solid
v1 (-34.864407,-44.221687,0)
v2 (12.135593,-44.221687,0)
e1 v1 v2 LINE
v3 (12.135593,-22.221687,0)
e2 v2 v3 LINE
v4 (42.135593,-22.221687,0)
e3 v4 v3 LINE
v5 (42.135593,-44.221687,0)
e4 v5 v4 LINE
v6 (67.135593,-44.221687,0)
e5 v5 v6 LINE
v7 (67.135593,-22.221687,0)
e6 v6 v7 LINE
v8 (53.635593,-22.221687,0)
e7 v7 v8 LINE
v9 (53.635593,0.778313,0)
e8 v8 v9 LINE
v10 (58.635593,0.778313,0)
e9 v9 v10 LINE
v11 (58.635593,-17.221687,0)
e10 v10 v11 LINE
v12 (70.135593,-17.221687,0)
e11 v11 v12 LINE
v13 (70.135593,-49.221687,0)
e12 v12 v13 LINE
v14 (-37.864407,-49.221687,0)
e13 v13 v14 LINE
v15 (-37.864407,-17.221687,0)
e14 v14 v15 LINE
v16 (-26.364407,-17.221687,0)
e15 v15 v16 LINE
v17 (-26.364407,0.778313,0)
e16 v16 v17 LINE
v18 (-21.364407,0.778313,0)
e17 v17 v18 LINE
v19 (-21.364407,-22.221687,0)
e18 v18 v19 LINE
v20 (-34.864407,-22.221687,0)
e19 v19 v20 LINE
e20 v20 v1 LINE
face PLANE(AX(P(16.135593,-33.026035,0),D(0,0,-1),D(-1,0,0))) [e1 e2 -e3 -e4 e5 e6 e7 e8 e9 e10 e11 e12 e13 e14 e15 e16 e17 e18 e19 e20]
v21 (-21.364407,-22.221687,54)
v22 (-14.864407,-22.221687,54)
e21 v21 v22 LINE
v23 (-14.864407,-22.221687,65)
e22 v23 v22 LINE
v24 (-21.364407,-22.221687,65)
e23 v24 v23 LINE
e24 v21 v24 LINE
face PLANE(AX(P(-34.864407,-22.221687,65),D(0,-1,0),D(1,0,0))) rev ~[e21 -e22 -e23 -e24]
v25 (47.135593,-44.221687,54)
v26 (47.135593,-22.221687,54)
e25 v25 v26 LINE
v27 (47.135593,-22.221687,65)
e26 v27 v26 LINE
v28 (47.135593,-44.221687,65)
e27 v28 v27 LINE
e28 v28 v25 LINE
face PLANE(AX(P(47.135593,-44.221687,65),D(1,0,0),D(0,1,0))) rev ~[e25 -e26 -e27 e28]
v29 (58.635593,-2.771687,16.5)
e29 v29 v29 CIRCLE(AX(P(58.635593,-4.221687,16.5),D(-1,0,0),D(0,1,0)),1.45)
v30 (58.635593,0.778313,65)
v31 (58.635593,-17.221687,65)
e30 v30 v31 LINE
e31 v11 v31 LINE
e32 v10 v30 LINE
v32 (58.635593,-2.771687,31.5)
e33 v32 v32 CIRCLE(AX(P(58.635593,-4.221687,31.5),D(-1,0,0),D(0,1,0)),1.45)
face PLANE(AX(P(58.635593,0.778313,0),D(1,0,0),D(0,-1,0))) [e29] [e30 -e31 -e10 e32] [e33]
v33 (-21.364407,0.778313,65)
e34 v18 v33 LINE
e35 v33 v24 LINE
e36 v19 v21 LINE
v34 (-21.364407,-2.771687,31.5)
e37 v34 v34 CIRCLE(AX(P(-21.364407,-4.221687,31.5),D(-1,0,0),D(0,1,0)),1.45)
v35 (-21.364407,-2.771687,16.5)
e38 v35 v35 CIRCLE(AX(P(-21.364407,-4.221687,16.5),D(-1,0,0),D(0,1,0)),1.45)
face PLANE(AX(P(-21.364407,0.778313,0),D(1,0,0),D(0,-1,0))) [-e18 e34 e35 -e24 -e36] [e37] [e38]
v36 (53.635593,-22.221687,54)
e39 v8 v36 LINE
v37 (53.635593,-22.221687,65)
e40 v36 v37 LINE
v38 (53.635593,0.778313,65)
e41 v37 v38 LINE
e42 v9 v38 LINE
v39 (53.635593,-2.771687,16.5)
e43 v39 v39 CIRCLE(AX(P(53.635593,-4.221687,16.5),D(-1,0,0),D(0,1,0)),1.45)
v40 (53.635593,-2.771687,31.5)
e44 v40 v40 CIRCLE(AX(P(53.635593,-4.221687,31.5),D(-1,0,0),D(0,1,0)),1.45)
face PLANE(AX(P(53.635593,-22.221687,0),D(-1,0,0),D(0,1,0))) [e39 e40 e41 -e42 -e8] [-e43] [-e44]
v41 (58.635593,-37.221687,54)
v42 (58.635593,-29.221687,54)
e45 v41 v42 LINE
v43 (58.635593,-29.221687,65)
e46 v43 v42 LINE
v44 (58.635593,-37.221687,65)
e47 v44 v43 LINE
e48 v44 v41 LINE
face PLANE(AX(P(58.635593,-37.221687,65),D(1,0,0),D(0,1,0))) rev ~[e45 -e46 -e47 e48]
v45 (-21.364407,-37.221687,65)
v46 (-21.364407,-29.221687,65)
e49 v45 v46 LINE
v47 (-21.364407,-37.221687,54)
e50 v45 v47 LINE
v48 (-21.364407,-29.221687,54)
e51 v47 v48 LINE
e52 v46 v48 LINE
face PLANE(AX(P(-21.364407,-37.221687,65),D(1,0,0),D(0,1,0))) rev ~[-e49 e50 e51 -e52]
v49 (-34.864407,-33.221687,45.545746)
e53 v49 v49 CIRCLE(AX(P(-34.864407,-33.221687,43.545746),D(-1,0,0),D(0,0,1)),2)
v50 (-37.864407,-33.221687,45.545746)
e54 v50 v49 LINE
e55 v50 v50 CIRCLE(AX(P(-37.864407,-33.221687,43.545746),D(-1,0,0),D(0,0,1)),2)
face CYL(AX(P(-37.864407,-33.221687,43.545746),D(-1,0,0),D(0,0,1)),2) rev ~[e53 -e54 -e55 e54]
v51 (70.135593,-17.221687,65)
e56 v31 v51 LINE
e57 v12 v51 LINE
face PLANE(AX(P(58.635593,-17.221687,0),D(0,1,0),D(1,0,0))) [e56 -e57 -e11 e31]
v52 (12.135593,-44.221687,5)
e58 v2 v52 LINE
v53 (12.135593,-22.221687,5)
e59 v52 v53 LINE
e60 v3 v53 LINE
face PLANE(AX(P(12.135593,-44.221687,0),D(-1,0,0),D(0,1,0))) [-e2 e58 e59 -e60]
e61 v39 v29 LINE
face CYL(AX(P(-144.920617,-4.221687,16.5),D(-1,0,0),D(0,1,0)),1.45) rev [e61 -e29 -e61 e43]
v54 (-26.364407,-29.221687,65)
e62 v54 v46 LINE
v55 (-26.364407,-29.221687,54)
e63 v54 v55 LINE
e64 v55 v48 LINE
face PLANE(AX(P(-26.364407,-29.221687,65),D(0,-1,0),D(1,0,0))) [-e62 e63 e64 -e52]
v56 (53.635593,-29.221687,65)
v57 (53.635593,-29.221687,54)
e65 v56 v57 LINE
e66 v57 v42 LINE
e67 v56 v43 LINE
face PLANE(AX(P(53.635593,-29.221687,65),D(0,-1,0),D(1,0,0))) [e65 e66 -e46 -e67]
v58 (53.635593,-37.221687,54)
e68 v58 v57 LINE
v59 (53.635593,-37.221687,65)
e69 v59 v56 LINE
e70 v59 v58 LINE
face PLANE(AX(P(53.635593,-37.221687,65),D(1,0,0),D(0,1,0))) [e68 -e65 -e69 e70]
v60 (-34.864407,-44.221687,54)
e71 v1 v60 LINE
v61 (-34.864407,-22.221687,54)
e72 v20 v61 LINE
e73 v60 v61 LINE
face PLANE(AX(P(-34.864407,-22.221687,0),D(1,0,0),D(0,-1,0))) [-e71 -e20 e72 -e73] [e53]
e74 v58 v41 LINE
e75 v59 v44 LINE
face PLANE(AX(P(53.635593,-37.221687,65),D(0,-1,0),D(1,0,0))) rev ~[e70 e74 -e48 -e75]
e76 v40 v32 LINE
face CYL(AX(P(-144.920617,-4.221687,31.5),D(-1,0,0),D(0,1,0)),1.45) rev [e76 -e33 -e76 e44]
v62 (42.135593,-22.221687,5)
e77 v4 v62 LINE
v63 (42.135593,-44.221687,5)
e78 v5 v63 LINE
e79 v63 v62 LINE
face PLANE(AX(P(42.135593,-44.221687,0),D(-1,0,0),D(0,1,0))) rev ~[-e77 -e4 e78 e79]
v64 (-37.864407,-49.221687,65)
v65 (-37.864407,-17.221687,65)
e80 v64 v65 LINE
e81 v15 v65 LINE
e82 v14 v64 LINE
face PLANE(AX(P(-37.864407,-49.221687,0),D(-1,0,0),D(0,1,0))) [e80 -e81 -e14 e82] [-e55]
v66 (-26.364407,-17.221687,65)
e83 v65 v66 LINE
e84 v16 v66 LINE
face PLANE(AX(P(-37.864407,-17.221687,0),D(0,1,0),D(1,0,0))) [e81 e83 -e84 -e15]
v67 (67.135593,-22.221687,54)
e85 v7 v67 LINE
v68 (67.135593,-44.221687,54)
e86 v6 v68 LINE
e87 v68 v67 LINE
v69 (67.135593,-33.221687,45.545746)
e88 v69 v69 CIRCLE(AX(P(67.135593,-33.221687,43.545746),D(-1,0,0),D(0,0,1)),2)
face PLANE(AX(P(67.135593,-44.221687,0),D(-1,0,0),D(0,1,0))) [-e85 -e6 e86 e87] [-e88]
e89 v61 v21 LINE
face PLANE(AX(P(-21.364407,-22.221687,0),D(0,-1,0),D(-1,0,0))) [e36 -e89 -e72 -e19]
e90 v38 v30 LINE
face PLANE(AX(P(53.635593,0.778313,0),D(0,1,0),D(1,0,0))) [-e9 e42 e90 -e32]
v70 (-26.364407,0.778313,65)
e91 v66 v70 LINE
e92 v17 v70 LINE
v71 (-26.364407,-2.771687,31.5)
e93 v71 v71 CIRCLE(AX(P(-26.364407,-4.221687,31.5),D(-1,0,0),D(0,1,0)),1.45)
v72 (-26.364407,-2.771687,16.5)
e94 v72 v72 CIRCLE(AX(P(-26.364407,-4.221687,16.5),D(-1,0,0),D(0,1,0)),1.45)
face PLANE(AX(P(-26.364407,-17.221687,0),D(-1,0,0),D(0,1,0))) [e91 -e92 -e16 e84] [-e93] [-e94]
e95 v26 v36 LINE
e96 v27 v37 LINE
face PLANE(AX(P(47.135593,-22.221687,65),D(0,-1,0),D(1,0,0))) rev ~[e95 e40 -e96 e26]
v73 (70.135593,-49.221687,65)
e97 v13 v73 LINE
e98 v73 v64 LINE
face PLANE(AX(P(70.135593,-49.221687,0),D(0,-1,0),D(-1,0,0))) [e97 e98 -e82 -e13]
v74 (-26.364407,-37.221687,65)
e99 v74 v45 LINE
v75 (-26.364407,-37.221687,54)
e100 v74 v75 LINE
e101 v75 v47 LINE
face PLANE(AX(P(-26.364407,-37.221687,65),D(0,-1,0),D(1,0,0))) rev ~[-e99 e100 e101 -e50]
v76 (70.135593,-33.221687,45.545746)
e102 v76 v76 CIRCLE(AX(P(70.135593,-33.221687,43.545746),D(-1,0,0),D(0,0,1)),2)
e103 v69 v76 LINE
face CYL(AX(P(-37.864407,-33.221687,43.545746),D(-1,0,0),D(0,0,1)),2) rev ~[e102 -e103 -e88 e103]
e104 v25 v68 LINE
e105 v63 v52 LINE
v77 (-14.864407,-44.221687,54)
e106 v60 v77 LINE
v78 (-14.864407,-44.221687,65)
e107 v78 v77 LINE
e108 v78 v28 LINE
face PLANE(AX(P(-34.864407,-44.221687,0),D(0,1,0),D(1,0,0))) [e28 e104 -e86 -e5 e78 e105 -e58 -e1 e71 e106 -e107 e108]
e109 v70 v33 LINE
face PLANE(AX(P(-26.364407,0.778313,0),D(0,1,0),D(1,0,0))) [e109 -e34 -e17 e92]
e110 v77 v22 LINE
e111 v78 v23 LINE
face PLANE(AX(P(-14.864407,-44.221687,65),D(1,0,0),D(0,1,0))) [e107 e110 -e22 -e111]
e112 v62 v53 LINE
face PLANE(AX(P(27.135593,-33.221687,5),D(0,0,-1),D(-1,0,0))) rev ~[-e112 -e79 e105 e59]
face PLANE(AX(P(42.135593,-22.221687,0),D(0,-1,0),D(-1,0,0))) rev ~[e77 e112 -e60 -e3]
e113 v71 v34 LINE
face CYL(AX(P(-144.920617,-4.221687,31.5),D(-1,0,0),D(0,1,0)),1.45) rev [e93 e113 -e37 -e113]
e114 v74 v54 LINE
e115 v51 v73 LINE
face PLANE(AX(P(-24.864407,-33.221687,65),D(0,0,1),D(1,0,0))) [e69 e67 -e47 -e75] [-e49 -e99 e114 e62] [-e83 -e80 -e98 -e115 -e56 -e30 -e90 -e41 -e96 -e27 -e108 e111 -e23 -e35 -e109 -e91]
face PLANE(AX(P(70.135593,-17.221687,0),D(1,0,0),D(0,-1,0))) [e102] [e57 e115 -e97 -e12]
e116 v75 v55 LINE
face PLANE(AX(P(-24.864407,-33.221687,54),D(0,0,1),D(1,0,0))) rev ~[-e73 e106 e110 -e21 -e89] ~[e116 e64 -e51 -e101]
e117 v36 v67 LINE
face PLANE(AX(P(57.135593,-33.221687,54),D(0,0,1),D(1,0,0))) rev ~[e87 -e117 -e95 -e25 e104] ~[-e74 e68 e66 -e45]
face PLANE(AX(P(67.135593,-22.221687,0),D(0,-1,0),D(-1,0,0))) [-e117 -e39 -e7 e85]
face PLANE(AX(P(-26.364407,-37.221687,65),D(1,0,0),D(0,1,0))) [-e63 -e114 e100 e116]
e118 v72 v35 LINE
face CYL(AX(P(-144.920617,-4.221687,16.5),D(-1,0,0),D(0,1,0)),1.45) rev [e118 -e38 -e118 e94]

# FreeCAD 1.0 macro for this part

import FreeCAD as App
import Part
import Sketcher


def add_polygon(sketch, points):
    """Adds a closed chain of lines whose ends are joined by coincident constraints."""
    first, n = sketch.GeometryCount, len(points)
    for a, b in zip(points, points[1:] + points[:1]):
        sketch.addGeometry(Part.LineSegment(App.Vector(*a, 0), App.Vector(*b, 0)), False)
    for i in range(n):
        sketch.addConstraint(Sketcher.Constraint("Coincident", first + i, 2, first + (i + 1) % n, 1))

doc = App.newDocument("Part")
body = doc.addObject("PartDesign::Body", "Body")

sketch1 = doc.addObject("Sketcher::SketchObject", "Sketch")
body.addObject(sketch1)
sketch1.AttachmentSupport = (doc.XY_Plane, [""])
sketch1.MapMode = "FlatFace"
add_polygon(sketch1, [(-21, 1), (-26, 1), (-26, -17), (-38, -17), (-38, -49), (70, -49), (70, -17), (59, -17), (59, 1), (54, 1), (54, -22), (67, -22), (67, -44), (-35, -44), (-35, -22), (-21, -22)])
sketch1.addConstraint(Sketcher.Constraint("Horizontal", 0))
sketch1.addConstraint(Sketcher.Constraint("Vertical", 1))
sketch1.addConstraint(Sketcher.Constraint("Horizontal", 2))
sketch1.addConstraint(Sketcher.Constraint("Vertical", 3))
sketch1.addConstraint(Sketcher.Constraint("Horizontal", 4))
sketch1.addConstraint(Sketcher.Constraint("Vertical", 5))
sketch1.addConstraint(Sketcher.Constraint("Horizontal", 6))
sketch1.addConstraint(Sketcher.Constraint("Vertical", 7))
sketch1.addConstraint(Sketcher.Constraint("Horizontal", 8))
sketch1.addConstraint(Sketcher.Constraint("Vertical", 9))
sketch1.addConstraint(Sketcher.Constraint("Horizontal", 10))
sketch1.addConstraint(Sketcher.Constraint("Vertical", 11))
sketch1.addConstraint(Sketcher.Constraint("Horizontal", 12))
sketch1.addConstraint(Sketcher.Constraint("Vertical", 13))
sketch1.addConstraint(Sketcher.Constraint("Horizontal", 14))
sketch1.addConstraint(Sketcher.Constraint("Vertical", 15))
sketch1.addConstraint(Sketcher.Constraint("Horizontal", 2, 2, 5, 2))
sketch1.addConstraint(Sketcher.Constraint("Horizontal", 0, 2, 7, 2))
sketch1.addConstraint(Sketcher.Constraint("Horizontal", 10, 2, 13, 2))
sketch1.addConstraint(Sketcher.Constraint("Equal", 2, 6))
sketch1.addConstraint(Sketcher.Constraint("Equal", 0, 8))
sketch1.addConstraint(Sketcher.Constraint("Equal", 10, 14))
sketch1.addConstraint(Sketcher.Constraint("DistanceX", 0, 2, 0, 1, 5.0))
sketch1.addConstraint(Sketcher.Constraint("DistanceX", 4, 1, 4, 2, 108.0))
sketch1.addConstraint(Sketcher.Constraint("DistanceX", 12, 2, 12, 1, 102.0))
sketch1.addConstraint(Sketcher.Constraint("DistanceY", 1, 2, 1, 1, 18.0))
sketch1.addConstraint(Sketcher.Constraint("DistanceY", 3, 2, 3, 1, 32.0))
sketch1.addConstraint(Sketcher.Constraint("DistanceY", 9, 2, 9, 1, 23.0))
sketch1.addConstraint(Sketcher.Constraint("DistanceY", 11, 2, 11, 1, 22.0))
sketch1.addConstraint(Sketcher.Constraint("DistanceX", 2, 2, 2, 1, 11.5))
sketch1.addConstraint(Sketcher.Constraint("DistanceX", 0, 2, -1, 1, 26.364407))
sketch1.addConstraint(Sketcher.Constraint("DistanceY", -1, 1, 0, 2, 0.778313))
pad1 = doc.addObject("PartDesign::Pad", "Pad")
body.addObject(pad1)
pad1.Profile = sketch1
pad1.Length = 65

sketch2 = doc.addObject("Sketcher::SketchObject", "Sketch001")
body.addObject(sketch2)
sketch2.AttachmentSupport = (doc.YZ_Plane, [""])
sketch2.MapMode = "FlatFace"
sketch2.AttachmentOffset = App.Placement(App.Vector(0, 0, -37.864407), App.Rotation())
sketch2.addGeometry(Part.Circle(App.Vector(-33.2, 43.5, 0), App.Vector(0, 0, 1), 2), False)
sketch2.addConstraint(Sketcher.Constraint("Diameter", 0, 4.0))
sketch2.addConstraint(Sketcher.Constraint("DistanceX", 0, 3, -1, 1, 33.221687))
sketch2.addConstraint(Sketcher.Constraint("DistanceY", -1, 1, 0, 3, 43.545746))
pocket1 = doc.addObject("PartDesign::Pocket", "Pocket")
body.addObject(pocket1)
pocket1.Profile = sketch2
pocket1.Type = "ThroughAll"
pocket1.Reversed = True

sketch3 = doc.addObject("Sketcher::SketchObject", "Sketch002")
body.addObject(sketch3)
sketch3.AttachmentSupport = (doc.XY_Plane, [""])
sketch3.MapMode = "FlatFace"
add_polygon(sketch3, [(42, -22), (42, -44), (12, -44), (12, -22)])
sketch3.addConstraint(Sketcher.Constraint("Vertical", 0))
sketch3.addConstraint(Sketcher.Constraint("Horizontal", 1))
sketch3.addConstraint(Sketcher.Constraint("Vertical", 2))
sketch3.addConstraint(Sketcher.Constraint("Horizontal", 3))
sketch3.addConstraint(Sketcher.Constraint("DistanceX", 1, 2, 1, 1, 30.0))
sketch3.addConstraint(Sketcher.Constraint("DistanceY", 0, 2, 0, 1, 22.0))
sketch3.addConstraint(Sketcher.Constraint("DistanceX", -1, 1, 0, 2, 42.135593))
sketch3.addConstraint(Sketcher.Constraint("DistanceY", 0, 2, -1, 1, 44.221687))
pad2 = doc.addObject("PartDesign::Pad", "Pad001")
body.addObject(pad2)
pad2.Profile = sketch3
pad2.Length = 5

sketch4 = doc.addObject("Sketcher::SketchObject", "Sketch003")
body.addObject(sketch4)
sketch4.AttachmentSupport = (doc.YZ_Plane, [""])
sketch4.MapMode = "FlatFace"
sketch4.AttachmentOffset = App.Placement(App.Vector(0, 0, -21.364407), App.Rotation())
sketch4.addGeometry(Part.Circle(App.Vector(-4.2, 31.5, 0), App.Vector(0, 0, 1), 1.4), False)
sketch4.addGeometry(Part.Circle(App.Vector(-4.2, 16.5, 0), App.Vector(0, 0, 1), 1.4), False)
sketch4.addConstraint(Sketcher.Constraint("Equal", 0, 1))
sketch4.addConstraint(Sketcher.Constraint("Vertical", 0, 3, 1, 3))
sketch4.addConstraint(Sketcher.Constraint("Diameter", 0, 2.9))
sketch4.addConstraint(Sketcher.Constraint("DistanceY", 1, 3, 0, 3, 15.0))
sketch4.addConstraint(Sketcher.Constraint("DistanceY", -1, 1, 0, 3, 31.5))
sketch4.addConstraint(Sketcher.Constraint("DistanceX", 0, 3, -1, 1, 4.221687))
pocket2 = doc.addObject("PartDesign::Pocket", "Pocket001")
body.addObject(pocket2)
pocket2.Profile = sketch4
pocket2.Type = "ThroughAll"
pocket2.Midplane = True

sketch5 = doc.addObject("Sketcher::SketchObject", "Sketch004")
body.addObject(sketch5)
sketch5.AttachmentSupport = (doc.XY_Plane, [""])
sketch5.MapMode = "FlatFace"
sketch5.AttachmentOffset = App.Placement(App.Vector(0, 0, 65), App.Rotation())
add_polygon(sketch5, [(-35, -22), (-35, -44), (-15, -44), (-15, -22)])
add_polygon(sketch5, [(-21, -37), (-26, -37), (-26, -29), (-21, -29)])
add_polygon(sketch5, [(47, -22), (47, -44), (67, -44), (67, -22)])
add_polygon(sketch5, [(59, -37), (54, -37), (54, -29), (59, -29)])
sketch5.addConstraint(Sketcher.Constraint("Vertical", 0))
sketch5.addConstraint(Sketcher.Constraint("Horizontal", 1))
sketch5.addConstraint(Sketcher.Constraint("Vertical", 2))
sketch5.addConstraint(Sketcher.Constraint("Horizontal", 3))
sketch5.addConstraint(Sketcher.Constraint("Horizontal", 4))
sketch5.addConstraint(Sketcher.Constraint("Vertical", 5))
sketch5.addConstraint(Sketcher.Constraint("Horizontal", 6))
sketch5.addConstraint(Sketcher.Constraint("Vertical", 7))
sketch5.addConstraint(Sketcher.Constraint("Vertical", 8))
sketch5.addConstraint(Sketcher.Constraint("Horizontal", 9))
sketch5.addConstraint(Sketcher.Constraint("Vertical", 10))
sketch5.addConstraint(Sketcher.Constraint("Horizontal", 11))
sketch5.addConstraint(Sketcher.Constraint("Horizontal", 12))
sketch5.addConstraint(Sketcher.Constraint("Vertical", 13))
sketch5.addConstraint(Sketcher.Constraint("Horizontal", 14))
sketch5.addConstraint(Sketcher.Constraint("Vertical", 15))
sketch5.addConstraint(Sketcher.Constraint("Horizontal", 1, 2, 8, 2))
sketch5.addConstraint(Sketcher.Constraint("Horizontal", 3, 2, 10, 2))
sketch5.addConstraint(Sketcher.Constraint("Horizontal", 7, 2, 12, 2))
sketch5.addConstraint(Sketcher.Constraint("Horizontal", 6, 2, 13, 2))
sketch5.addConstraint(Sketcher.Constraint("Equal", 3, 9))
sketch5.addConstraint(Sketcher.Constraint("Equal", 6, 12))
sketch5.addConstraint(Sketcher.Constraint("DistanceX", 1, 1, 1, 2, 20.0))
sketch5.addConstraint(Sketcher.Constraint("DistanceX", 4, 2, 4, 1, 5.0))
sketch5.addConstraint(Sketcher.Constraint("DistanceY", 0, 2, 0, 1, 22.0))
sketch5.addConstraint(Sketcher.Constraint("DistanceY", 5, 1, 5, 2, 8.0))
sketch5.addConstraint(Sketcher.Constraint("DistanceY", 0, 2, 4, 2, 7.0))
sketch5.addConstraint(Sketcher.Constraint("DistanceX", 1, 2, 8, 2, 62.0))
sketch5.addConstraint(Sketcher.Constraint("DistanceX", 0, 2, 4, 2, 8.5))
sketch5.addConstraint(Sketcher.Constraint("DistanceX", 8, 2, 12, 2, 6.5))
sketch5.addConstraint(Sketcher.Constraint("DistanceX", 0, 2, -1, 1, 34.864407))
sketch5.addConstraint(Sketcher.Constraint("DistanceY", 0, 2, -1, 1, 44.221687))
pad3 = doc.addObject("PartDesign::Pad", "Pad002")
body.addObject(pad3)
pad3.Profile = sketch5
pad3.Length = 11
pad3.Reversed = True

doc.recompute()
